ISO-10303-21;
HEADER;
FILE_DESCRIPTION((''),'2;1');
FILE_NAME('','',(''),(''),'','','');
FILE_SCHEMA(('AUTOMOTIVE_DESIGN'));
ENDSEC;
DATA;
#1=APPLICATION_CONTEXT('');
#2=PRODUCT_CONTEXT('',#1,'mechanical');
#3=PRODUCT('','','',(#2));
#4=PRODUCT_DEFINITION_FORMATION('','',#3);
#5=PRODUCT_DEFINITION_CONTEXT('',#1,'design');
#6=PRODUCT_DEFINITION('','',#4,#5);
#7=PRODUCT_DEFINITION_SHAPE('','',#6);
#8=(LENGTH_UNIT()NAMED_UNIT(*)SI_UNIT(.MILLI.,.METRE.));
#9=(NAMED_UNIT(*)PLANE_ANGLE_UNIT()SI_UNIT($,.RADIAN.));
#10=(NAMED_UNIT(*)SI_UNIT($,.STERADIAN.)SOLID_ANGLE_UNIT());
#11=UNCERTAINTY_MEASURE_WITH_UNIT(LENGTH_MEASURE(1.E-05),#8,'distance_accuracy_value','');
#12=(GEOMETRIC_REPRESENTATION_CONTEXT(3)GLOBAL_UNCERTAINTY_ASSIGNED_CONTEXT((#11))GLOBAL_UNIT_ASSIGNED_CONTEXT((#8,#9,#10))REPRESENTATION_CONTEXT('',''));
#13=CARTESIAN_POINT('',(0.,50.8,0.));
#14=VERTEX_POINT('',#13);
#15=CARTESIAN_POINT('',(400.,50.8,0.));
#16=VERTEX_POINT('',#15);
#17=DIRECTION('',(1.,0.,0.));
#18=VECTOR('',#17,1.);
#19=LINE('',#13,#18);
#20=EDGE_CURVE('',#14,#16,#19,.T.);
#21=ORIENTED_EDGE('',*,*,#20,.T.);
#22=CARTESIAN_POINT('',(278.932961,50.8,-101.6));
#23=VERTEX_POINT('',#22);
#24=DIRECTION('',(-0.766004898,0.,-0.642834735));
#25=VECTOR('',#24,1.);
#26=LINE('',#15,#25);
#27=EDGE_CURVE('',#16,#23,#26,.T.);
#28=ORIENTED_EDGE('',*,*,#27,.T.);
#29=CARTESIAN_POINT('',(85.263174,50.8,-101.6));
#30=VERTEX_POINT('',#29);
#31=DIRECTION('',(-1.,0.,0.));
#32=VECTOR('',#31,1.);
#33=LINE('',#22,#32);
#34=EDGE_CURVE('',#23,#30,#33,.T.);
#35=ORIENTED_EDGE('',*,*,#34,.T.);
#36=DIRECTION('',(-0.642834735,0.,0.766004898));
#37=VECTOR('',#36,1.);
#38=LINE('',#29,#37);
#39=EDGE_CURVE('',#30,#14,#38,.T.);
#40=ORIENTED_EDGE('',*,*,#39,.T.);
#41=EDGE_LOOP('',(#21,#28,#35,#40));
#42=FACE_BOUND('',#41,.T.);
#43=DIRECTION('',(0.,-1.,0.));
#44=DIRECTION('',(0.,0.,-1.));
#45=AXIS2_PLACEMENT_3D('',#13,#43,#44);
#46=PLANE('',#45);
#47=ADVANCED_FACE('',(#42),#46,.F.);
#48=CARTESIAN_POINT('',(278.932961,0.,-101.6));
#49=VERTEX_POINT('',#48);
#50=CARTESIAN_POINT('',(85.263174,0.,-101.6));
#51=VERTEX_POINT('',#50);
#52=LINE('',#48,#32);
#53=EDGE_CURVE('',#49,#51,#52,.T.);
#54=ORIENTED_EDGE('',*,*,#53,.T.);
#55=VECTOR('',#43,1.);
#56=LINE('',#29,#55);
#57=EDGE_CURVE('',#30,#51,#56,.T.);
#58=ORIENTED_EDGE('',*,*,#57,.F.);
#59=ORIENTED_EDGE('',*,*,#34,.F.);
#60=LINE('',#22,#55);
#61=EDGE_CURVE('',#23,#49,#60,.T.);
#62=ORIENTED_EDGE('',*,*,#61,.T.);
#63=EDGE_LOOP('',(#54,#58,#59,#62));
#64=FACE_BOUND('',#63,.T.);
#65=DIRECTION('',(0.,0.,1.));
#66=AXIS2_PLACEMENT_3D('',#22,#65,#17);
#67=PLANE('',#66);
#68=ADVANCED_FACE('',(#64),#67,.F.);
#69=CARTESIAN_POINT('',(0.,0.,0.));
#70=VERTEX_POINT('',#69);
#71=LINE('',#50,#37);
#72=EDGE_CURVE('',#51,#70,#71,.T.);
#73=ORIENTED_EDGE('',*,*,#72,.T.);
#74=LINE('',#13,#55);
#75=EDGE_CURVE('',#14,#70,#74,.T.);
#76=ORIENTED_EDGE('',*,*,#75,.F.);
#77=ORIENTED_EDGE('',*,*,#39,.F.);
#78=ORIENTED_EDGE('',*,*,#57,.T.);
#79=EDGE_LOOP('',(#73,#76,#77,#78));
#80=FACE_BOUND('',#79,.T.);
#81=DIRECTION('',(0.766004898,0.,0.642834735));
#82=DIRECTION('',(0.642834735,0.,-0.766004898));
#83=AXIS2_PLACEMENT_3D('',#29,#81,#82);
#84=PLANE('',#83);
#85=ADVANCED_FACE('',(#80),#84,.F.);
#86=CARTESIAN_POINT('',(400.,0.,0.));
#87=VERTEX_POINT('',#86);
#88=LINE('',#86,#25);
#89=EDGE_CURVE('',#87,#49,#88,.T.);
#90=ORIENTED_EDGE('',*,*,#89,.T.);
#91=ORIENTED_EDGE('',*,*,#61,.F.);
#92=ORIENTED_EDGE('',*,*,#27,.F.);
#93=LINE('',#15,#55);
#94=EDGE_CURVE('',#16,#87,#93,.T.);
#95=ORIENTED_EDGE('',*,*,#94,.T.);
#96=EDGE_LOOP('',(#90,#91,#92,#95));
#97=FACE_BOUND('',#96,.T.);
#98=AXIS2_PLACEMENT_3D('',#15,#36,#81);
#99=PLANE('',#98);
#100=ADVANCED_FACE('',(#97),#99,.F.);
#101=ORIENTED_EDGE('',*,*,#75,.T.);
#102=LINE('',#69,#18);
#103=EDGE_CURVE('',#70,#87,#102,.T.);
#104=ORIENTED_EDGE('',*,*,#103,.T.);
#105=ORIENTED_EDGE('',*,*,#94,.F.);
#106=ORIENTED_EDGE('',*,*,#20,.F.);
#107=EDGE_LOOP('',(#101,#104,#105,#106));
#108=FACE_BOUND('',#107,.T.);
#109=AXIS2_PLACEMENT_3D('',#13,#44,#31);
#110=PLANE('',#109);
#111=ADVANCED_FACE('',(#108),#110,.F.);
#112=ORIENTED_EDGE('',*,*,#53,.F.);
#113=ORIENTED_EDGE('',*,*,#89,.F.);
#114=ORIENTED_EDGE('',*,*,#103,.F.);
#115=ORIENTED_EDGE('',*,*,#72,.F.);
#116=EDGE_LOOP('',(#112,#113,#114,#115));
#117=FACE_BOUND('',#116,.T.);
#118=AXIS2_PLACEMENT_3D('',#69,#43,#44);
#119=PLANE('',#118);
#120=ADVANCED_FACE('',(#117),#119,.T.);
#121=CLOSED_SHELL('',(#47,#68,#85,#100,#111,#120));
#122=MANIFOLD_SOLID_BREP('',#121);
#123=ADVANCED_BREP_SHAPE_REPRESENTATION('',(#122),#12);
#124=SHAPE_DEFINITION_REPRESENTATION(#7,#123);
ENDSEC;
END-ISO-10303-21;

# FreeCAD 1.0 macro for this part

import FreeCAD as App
import Part
import Sketcher
from FreeCAD import Vector


def add_polygon(sketch, points):
    """Adds a closed chain of lines whose ends are joined by coincident constraints."""
    first, n = sketch.GeometryCount, len(points)
    for a, b in zip(points, points[1:] + points[:1]):
        sketch.addGeometry(Part.LineSegment(App.Vector(*a, 0), App.Vector(*b, 0)), False)
    for i in range(n):
        sketch.addConstraint(Sketcher.Constraint("Coincident", first + i, 2, first + (i + 1) % n, 1))

doc = App.newDocument("Part")
body = doc.addObject("PartDesign::Body", "Body")

# Sketch on XZ plane
sketch1 = body.newObject("Sketcher::SketchObject", "Sketch")
sketch1.AttachmentSupport = (doc.getObject("XZ_Plane"), [""])
sketch1.MapMode = "FlatFace"
add_polygon(sketch1, [(0, 0), (400, 0), (279, -102), (85, -102)])  # lines 0-3
sketch1.addConstraint([
    Sketcher.Constraint("Horizontal", 0),
    Sketcher.Constraint("Horizontal", 2),
    Sketcher.Constraint("Coincident", 3, 2, -1, 1),
    Sketcher.Constraint("Perpendicular", 1, 3),
    Sketcher.Constraint("DistanceX", 0, 1, 0, 2, 400.0),
    Sketcher.Constraint("DistanceY", 1, 2, -1, 1, 101.6),
    Sketcher.Constraint("DistanceX", 2, 2, 2, 1, 193.669787),
])
pad1 = body.newObject("PartDesign::Pad", "Pad")
pad1.Profile = sketch1
pad1.Length = 50.8
pad1.Reversed = True

doc.recompute()
